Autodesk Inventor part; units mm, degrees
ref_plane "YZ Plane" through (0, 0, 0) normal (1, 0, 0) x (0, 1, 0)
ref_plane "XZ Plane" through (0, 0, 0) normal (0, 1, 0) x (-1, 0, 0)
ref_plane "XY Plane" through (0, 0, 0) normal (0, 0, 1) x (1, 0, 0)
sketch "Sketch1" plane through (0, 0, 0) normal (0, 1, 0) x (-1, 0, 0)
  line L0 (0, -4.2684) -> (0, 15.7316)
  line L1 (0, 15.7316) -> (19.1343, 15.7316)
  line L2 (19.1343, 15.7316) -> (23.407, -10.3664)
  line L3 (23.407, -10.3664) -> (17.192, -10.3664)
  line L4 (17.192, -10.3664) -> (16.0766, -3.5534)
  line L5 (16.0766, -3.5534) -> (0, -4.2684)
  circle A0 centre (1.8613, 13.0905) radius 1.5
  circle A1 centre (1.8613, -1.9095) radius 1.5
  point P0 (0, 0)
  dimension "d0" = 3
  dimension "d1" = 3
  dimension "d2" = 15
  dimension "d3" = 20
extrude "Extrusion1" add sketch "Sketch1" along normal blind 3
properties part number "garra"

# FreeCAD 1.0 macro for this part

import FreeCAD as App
import Part
import Sketcher

V = App.Vector
Q = App.Units.Quantity

doc = App.newDocument("Part")
body = doc.addObject("PartDesign::Body", "Body")

sketch1 = body.newObject("Sketcher::SketchObject", "Sketch")
sketch1.AttachmentSupport = (doc.getObject("XZ_Plane"), [""])
sketch1.MapMode = "FlatFace"
sketch1.addGeometry([
    Part.LineSegment(V(0, 15.7316, 0), V(0, -4.2684, 0)),
    Part.LineSegment(V(0, -4.2684, 0), V(-16.0766, -3.5534, 0)),
    Part.LineSegment(V(-16.0766, -3.5534, 0), V(-17.192, -10.3664, 0)),
    Part.LineSegment(V(-17.192, -10.3664, 0), V(-23.407, -10.3664, 0)),
    Part.LineSegment(V(-23.407, -10.3664, 0), V(-19.1343, 15.7316, 0)),
    Part.LineSegment(V(-19.1343, 15.7316, 0), V(0, 15.7316, 0)),
    Part.Circle(V(-1.8613, -1.9095, 0), V(0, 0, 1), 1.5),
    Part.Circle(V(-1.8613, 13.0905, 0), V(0, 0, 1), 1.5),
], False)
sketch1.addConstraint([
    Sketcher.Constraint("Coincident", 0, 2, 1, 1),
    Sketcher.Constraint("Coincident", 1, 2, 2, 1),
    Sketcher.Constraint("Coincident", 2, 2, 3, 1),
    Sketcher.Constraint("Coincident", 3, 2, 4, 1),
    Sketcher.Constraint("Coincident", 4, 2, 5, 1),
    Sketcher.Constraint("Coincident", 5, 2, 0, 1),
    Sketcher.Constraint("Vertical", 0),
    Sketcher.Constraint("Horizontal", 3),
    Sketcher.Constraint("Horizontal", 5),
    Sketcher.Constraint("Equal", 6, 7),
    Sketcher.Constraint("PointOnObject", 0, 2, -2),
    Sketcher.Constraint("Parallel", 2, 4),
    Sketcher.Constraint("Vertical", 6, 3, 7, 3),
    Sketcher.Constraint("Diameter", 6, Q("3 mm")),
    Sketcher.Constraint("DistanceY", 0, 2, 0, 1, Q("20 mm")),
    Sketcher.Constraint("DistanceY", 6, 3, 7, 3, Q("15 mm")),
    Sketcher.Constraint("DistanceX", 3, 2, 3, 1, Q("6.215 mm")),
    Sketcher.Constraint("DistanceX", 5, 1, 5, 2, Q("19.1343 mm")),
    Sketcher.Constraint("DistanceX", 2, 2, -1, 1, Q("17.192 mm")),
    Sketcher.Constraint("DistanceY", 0, 2, 6, 3, Q("2.359 mm")),
    Sketcher.Constraint("DistanceY", 1, 2, 6, 3, Q("1.644 mm")),
    Sketcher.Constraint("DistanceY", 2, 2, 1, 2, Q("6.813 mm")),
    Sketcher.Constraint("DistanceX", 4, 2, 7, 3, Q("17.273 mm")),
    Sketcher.Constraint("DistanceY", 6, 3, -1, 1, Q("1.9095 mm")),
])
pad1 = body.newObject("PartDesign::Pad", "Pad")
pad1.Profile = sketch1
pad1.Length = 3
pad1.Reversed = True

doc.recompute()
